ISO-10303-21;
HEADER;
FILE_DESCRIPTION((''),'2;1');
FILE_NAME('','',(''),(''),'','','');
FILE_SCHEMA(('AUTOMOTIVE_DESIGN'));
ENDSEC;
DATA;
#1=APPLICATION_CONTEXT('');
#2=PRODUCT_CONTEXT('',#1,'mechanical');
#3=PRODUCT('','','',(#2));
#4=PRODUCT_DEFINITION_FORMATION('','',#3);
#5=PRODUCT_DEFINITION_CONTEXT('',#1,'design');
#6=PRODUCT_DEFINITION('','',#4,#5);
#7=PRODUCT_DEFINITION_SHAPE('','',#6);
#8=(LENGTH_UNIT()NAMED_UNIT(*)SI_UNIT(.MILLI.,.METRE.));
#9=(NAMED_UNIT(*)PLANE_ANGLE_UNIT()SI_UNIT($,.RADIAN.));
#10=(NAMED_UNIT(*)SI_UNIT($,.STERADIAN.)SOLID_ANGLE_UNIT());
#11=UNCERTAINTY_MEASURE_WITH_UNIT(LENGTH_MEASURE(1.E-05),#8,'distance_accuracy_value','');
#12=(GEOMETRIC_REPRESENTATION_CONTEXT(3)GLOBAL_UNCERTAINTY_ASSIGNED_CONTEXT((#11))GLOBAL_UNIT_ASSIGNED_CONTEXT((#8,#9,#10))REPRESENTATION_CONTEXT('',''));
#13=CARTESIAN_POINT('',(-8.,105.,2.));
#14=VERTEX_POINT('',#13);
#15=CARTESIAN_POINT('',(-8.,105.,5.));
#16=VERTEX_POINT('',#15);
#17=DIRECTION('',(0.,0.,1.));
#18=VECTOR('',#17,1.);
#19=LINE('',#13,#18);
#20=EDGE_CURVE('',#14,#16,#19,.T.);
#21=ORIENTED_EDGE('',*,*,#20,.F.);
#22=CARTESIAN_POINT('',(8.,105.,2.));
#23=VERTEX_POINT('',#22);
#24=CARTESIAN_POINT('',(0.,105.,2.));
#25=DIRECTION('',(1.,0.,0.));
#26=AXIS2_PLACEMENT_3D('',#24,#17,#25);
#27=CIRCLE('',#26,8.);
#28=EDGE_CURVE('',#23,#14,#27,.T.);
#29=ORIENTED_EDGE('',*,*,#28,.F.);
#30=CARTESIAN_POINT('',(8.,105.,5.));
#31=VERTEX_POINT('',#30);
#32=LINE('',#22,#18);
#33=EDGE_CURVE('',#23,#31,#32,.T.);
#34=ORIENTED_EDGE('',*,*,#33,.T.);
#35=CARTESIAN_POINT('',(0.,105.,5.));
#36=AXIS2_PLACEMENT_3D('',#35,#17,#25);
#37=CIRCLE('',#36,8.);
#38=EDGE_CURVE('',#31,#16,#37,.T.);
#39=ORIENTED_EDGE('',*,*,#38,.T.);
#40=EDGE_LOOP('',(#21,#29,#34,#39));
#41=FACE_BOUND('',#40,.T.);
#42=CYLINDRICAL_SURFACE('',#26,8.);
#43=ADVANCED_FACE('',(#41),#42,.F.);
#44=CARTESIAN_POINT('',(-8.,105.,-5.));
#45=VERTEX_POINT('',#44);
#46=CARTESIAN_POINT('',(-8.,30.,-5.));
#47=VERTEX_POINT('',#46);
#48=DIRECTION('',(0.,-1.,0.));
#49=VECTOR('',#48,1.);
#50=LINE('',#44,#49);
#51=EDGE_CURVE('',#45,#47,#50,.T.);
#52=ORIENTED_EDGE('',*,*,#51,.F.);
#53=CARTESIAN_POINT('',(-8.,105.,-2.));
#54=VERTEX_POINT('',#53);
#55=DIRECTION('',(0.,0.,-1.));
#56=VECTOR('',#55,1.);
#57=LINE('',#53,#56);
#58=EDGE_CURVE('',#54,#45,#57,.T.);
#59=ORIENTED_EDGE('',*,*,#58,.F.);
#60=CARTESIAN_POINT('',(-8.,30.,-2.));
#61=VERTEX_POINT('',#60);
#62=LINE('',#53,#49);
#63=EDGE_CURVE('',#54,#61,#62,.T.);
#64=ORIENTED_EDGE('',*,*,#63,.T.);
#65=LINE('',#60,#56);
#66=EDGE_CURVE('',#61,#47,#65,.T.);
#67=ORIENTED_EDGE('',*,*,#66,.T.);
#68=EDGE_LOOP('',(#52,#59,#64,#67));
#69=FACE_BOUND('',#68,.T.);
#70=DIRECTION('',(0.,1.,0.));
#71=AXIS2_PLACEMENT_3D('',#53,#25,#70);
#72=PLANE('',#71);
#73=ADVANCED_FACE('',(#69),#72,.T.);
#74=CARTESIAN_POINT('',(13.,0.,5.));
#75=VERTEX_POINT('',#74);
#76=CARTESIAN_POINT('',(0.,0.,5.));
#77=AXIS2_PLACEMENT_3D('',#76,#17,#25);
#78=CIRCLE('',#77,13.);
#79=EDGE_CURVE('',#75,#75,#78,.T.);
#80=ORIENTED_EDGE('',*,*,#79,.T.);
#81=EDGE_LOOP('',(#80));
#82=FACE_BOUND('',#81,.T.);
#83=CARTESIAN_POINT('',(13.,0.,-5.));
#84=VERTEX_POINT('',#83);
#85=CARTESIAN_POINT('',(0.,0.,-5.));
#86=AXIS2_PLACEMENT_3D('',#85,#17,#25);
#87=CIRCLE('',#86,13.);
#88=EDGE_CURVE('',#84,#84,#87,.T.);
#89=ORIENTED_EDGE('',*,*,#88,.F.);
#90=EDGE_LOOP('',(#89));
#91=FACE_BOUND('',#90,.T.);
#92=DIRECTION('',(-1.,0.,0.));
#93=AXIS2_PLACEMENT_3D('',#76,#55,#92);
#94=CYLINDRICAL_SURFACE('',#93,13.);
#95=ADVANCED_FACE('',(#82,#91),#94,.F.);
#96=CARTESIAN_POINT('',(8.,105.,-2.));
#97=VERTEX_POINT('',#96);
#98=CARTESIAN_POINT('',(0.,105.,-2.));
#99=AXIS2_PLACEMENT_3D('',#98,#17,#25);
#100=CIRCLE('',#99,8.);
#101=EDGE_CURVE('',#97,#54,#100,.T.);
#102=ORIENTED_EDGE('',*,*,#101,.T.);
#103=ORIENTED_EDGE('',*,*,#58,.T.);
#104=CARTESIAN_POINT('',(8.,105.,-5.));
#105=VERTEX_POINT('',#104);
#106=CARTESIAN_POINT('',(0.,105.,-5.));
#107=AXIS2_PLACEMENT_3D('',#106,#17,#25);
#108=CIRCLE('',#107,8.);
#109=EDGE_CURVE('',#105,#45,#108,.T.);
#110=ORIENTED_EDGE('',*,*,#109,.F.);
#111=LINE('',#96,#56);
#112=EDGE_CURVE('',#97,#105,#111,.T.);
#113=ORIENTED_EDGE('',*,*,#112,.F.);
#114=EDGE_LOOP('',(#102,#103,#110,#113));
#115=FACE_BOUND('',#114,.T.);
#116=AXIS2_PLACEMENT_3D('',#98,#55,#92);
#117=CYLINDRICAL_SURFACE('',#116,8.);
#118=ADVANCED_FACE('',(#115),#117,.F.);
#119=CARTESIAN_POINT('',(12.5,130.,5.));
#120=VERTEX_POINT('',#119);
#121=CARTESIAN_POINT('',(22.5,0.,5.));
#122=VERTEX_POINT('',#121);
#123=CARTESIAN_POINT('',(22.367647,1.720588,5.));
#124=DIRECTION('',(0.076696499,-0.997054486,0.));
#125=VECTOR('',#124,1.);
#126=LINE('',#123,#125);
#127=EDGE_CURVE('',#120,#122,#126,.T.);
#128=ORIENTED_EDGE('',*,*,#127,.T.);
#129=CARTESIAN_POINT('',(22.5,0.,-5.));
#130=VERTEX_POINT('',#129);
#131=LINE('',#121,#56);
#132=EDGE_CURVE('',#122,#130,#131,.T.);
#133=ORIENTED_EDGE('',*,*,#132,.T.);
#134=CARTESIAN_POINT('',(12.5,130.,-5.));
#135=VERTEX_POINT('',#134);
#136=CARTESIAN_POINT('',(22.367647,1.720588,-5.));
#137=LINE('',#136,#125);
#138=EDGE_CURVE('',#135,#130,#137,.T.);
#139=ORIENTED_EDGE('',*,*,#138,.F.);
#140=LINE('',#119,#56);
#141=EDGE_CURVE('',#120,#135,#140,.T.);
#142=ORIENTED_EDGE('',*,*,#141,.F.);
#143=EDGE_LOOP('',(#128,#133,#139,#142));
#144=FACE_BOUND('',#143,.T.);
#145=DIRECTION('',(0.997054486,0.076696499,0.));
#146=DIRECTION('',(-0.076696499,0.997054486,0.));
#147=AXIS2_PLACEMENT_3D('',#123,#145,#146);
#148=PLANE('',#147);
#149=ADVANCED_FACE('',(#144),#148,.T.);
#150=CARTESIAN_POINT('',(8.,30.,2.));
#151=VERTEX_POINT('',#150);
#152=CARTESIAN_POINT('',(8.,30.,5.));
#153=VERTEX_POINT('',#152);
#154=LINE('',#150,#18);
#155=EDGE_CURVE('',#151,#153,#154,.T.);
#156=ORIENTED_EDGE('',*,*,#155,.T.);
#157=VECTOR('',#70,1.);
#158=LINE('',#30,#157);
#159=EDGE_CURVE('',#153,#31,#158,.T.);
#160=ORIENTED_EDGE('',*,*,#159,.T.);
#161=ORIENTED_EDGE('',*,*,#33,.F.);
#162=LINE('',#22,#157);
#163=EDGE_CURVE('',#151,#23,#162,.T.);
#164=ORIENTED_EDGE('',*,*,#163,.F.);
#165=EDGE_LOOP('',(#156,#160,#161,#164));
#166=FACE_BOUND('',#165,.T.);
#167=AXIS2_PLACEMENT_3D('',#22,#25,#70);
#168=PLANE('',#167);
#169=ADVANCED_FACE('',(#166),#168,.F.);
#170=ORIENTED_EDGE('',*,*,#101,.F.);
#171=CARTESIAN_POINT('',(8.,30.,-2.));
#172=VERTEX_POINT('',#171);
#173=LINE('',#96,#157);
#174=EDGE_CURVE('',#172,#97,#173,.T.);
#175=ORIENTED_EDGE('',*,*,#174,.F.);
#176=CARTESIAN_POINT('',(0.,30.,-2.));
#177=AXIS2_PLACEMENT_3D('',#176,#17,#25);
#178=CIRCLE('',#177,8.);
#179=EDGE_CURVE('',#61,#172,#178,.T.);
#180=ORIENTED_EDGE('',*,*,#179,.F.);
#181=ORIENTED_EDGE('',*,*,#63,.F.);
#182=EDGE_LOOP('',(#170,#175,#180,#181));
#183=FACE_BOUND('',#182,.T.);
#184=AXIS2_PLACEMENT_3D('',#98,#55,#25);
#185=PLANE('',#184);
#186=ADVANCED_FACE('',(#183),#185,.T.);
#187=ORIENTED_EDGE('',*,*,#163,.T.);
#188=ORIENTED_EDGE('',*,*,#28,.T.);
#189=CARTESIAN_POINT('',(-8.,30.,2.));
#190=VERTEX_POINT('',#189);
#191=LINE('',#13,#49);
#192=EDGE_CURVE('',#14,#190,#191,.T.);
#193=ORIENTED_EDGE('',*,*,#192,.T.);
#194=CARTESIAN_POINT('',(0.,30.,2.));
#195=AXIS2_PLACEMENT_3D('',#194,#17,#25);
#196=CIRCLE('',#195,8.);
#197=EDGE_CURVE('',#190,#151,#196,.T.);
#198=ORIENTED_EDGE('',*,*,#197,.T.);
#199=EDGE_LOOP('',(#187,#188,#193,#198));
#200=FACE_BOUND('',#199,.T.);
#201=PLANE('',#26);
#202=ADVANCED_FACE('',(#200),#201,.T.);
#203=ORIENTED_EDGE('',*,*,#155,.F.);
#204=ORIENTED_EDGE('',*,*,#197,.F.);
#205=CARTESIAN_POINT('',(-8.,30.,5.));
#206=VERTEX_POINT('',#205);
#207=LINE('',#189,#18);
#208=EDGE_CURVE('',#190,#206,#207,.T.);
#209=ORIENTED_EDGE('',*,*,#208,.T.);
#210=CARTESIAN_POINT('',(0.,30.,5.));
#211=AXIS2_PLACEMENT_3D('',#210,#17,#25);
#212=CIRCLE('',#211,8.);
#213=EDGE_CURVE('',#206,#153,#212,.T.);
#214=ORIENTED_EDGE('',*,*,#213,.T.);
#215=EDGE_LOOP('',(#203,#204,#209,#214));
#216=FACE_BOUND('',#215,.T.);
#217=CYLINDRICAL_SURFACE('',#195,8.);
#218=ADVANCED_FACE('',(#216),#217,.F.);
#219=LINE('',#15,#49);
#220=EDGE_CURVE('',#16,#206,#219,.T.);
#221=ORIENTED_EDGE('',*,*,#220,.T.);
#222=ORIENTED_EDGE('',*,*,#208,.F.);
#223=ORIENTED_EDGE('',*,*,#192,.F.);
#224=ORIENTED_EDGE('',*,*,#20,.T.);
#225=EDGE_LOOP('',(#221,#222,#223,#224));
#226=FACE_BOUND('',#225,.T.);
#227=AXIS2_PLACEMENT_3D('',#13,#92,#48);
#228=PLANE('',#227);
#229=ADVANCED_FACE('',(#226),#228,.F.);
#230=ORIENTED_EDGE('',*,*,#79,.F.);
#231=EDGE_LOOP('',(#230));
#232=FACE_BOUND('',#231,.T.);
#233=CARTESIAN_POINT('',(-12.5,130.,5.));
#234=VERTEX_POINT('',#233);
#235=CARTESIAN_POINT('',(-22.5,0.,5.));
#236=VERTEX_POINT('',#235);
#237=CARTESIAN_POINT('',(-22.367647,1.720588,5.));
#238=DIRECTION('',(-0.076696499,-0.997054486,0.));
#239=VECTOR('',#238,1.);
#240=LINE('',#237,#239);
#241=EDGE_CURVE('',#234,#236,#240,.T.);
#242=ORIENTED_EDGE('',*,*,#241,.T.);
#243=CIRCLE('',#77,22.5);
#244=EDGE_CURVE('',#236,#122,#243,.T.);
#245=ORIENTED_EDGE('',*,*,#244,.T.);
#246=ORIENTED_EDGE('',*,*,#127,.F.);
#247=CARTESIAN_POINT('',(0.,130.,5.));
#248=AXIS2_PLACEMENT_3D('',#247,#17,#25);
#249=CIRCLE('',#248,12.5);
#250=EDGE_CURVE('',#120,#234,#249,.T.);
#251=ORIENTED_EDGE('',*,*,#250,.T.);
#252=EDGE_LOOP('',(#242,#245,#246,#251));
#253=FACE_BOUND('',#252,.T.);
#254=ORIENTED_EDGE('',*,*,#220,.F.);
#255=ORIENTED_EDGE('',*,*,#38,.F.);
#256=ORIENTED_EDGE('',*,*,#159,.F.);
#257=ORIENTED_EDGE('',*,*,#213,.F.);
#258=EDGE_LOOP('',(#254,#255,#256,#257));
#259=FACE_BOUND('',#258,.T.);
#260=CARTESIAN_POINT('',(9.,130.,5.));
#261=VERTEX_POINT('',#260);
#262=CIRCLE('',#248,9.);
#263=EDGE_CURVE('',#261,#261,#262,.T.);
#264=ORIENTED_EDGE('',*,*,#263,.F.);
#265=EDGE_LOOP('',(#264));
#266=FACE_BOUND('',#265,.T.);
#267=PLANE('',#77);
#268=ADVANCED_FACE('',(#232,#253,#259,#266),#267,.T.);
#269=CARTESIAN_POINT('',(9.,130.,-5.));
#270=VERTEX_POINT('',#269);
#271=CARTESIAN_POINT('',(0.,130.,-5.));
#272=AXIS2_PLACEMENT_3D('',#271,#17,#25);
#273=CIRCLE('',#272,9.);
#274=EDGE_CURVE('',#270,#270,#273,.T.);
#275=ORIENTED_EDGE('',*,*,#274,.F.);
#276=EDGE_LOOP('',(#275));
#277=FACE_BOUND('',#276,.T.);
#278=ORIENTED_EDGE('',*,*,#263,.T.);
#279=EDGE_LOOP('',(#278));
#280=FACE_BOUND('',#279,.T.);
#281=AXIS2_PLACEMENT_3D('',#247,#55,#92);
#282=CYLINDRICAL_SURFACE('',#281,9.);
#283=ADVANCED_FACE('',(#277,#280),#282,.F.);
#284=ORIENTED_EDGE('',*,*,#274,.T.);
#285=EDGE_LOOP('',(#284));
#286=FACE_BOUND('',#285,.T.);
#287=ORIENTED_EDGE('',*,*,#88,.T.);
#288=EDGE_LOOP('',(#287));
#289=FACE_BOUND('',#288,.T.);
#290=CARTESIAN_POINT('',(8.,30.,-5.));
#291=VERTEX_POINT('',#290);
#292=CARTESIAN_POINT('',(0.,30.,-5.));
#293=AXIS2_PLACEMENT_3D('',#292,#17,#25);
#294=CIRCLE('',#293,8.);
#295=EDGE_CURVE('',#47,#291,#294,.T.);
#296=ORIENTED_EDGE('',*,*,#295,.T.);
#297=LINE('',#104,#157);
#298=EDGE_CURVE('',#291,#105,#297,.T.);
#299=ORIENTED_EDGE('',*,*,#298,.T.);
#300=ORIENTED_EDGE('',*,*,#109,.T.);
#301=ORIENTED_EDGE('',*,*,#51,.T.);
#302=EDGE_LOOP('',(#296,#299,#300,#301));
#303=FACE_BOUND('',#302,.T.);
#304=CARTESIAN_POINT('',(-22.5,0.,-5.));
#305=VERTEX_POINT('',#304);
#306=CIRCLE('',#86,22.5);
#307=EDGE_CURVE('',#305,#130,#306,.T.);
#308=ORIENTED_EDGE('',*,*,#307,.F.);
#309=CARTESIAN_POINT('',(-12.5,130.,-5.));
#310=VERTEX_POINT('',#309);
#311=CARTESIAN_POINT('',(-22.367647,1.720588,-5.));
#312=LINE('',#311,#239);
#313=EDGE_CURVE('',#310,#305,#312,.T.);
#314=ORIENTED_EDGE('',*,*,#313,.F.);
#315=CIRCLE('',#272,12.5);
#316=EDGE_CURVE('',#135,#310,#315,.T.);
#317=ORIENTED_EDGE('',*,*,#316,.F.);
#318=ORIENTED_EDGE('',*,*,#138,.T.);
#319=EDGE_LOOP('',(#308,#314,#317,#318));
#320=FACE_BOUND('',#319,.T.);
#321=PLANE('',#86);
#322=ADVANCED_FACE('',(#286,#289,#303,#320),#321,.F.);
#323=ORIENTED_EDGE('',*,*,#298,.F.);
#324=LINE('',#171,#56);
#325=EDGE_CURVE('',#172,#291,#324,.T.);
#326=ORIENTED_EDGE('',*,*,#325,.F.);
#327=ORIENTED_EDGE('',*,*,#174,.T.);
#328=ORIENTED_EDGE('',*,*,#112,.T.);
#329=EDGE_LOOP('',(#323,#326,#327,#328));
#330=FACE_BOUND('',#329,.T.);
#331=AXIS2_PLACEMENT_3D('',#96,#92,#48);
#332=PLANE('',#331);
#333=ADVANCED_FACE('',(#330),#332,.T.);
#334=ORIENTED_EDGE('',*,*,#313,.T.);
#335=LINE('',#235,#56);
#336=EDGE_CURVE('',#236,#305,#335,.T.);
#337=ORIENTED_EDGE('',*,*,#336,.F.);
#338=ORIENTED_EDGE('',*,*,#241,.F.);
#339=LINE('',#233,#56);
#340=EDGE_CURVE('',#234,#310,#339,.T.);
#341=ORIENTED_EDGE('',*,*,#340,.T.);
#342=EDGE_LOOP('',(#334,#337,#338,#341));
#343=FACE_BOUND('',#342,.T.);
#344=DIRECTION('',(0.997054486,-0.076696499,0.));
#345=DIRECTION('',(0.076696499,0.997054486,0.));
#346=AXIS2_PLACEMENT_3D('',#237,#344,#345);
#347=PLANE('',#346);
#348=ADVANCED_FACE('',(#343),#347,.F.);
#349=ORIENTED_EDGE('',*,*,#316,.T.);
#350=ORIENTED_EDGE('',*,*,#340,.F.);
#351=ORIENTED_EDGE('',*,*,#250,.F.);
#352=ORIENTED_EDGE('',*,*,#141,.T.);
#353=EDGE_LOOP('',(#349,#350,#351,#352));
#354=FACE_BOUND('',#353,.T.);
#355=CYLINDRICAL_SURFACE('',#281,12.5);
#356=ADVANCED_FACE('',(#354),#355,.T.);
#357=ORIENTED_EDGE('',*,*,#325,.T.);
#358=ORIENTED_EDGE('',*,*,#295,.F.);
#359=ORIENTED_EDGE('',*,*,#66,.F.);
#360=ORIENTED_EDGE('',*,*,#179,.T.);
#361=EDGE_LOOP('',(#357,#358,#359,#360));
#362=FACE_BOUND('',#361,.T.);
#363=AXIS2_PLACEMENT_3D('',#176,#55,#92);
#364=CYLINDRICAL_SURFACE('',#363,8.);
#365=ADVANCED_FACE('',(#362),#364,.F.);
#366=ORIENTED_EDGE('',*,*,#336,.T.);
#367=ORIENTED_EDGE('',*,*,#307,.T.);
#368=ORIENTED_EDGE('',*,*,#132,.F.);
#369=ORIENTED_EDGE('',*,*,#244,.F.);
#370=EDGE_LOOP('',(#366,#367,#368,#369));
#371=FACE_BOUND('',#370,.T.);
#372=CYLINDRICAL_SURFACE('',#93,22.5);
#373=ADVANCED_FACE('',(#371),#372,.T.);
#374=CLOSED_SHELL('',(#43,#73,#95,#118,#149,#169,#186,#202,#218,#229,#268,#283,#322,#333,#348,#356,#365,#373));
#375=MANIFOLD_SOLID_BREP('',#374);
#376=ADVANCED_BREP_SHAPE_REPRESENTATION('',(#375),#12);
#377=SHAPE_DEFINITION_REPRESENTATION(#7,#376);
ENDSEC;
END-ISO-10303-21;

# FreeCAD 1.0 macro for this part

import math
import FreeCAD as App
import Part
import Sketcher

doc = App.newDocument("Part")
params = doc.addObject("Spreadsheet::Sheet", "Params")
for row, (alias, value) in enumerate([
    ("sketch1_diameter", "26 mm"),
    ("sketch1_diameter2", "18 mm"),
    ("sketch1_radius", "12.5 mm"),
    ("sketch1_radius2", "22.5 mm"),
    ("pad1_length", "10 mm"),
    ("sketch2_radius", "8 mm"),
    ("sketch2_height", "75 mm"),
    ("pocket1_length", "3 mm"),
], start=1):
    params.set(f"A{row}", alias)
    params.set(f"B{row}", "=" + value)
    params.setAlias(f"B{row}", alias)

body = doc.addObject("PartDesign::Body", "Body")

sketch1 = body.newObject("Sketcher::SketchObject", "Sketch")
sketch1.AttachmentSupport = (doc.getObject("XY_Plane"), [""])
sketch1.MapMode = "FlatFace"
sketch1.addGeometry([
    Part.ArcOfCircle(Part.Circle(App.Vector(0, 130, 0), App.Vector(0, 0, 1), 12.5), math.radians(0), math.radians(180)),
    Part.LineSegment(App.Vector(-12.5, 130, 0), App.Vector(-22.2, 3.4, 0)),
    Part.LineSegment(App.Vector(-22.2, 3.4, 0), App.Vector(-22.5, 0, 0)),
    Part.ArcOfCircle(Part.Circle(App.Vector(0, 0, 0), App.Vector(0, 0, 1), 22.5), math.radians(180), math.radians(360)),
    Part.LineSegment(App.Vector(22.5, 0, 0), App.Vector(22.2, 3.4, 0)),
    Part.LineSegment(App.Vector(22.2, 3.4, 0), App.Vector(12.5, 130, 0)),
    Part.Circle(App.Vector(0, 0, 0), App.Vector(0, 0, 1), 13),
    Part.Circle(App.Vector(0, 130, 0), App.Vector(0, 0, 1), 9),
], False)
sketch1.addConstraint([
    Sketcher.Constraint("Coincident", 0, 2, 1, 1),
    Sketcher.Constraint("Coincident", 1, 2, 2, 1),
    Sketcher.Constraint("Coincident", 2, 2, 3, 1),
    Sketcher.Constraint("Coincident", 3, 2, 4, 1),
    Sketcher.Constraint("Coincident", 4, 2, 5, 1),
    Sketcher.Constraint("Coincident", 5, 2, 0, 1),
    Sketcher.Constraint("Coincident", 3, 3, -1, 1),
    Sketcher.Constraint("Coincident", 6, 3, -1, 1),
    Sketcher.Constraint("Coincident", 7, 3, 0, 3),
    Sketcher.Constraint("Symmetric", 1, 2, 4, 2, -2),
    Sketcher.Constraint("Symmetric", 0, 2, 5, 2, -2),
    Sketcher.Constraint("PointOnObject", 2, 2, -1),
    Sketcher.Constraint("PointOnObject", 3, 2, -1),
    Sketcher.Constraint("Parallel", 1, 2),
    Sketcher.Constraint("Horizontal", 7, 3, 0, 2),
    Sketcher.Constraint("Diameter", 6, 26.0),
    Sketcher.Constraint("Diameter", 7, 18.0),
    Sketcher.Constraint("Radius", 0, 12.5),
    Sketcher.Constraint("Radius", 3, 22.5),
    Sketcher.Constraint("DistanceY", -1, 1, 0, 3, 130.0),
    Sketcher.Constraint("DistanceX", 1, 2, 4, 2, 44.470588),
])
sketch1.setExpression("Constraints[15]", "Params.sketch1_diameter")
sketch1.setExpression("Constraints[16]", "Params.sketch1_diameter2")
sketch1.setExpression("Constraints[17]", "Params.sketch1_radius")
sketch1.setExpression("Constraints[18]", "Params.sketch1_radius2")
pad1 = body.newObject("PartDesign::Pad", "Pad")
pad1.Profile = sketch1
pad1.setExpression("Length", "Params.pad1_length")
pad1.Midplane = True

sketch2 = body.newObject("Sketcher::SketchObject", "Sketch001")
sketch2.AttachmentSupport = (doc.getObject("XY_Plane"), [""])
sketch2.MapMode = "FlatFace"
sketch2.AttachmentOffset = App.Placement(App.Vector(0, 0, 5), App.Rotation())
sketch2.addGeometry([
    Part.LineSegment(App.Vector(8, 30, 0), App.Vector(8, 105, 0)),
    Part.ArcOfCircle(Part.Circle(App.Vector(0, 105, 0), App.Vector(0, 0, 1), 8), math.radians(0), math.radians(180)),
    Part.LineSegment(App.Vector(-8, 105, 0), App.Vector(-8, 30, 0)),
    Part.ArcOfCircle(Part.Circle(App.Vector(0, 30, 0), App.Vector(0, 0, 1), 8), math.radians(180), math.radians(360)),
], False)
sketch2.addConstraint([
    Sketcher.Constraint("Tangent", 0, 2, 1, 1),
    Sketcher.Constraint("Tangent", 1, 2, 2, 1),
    Sketcher.Constraint("Tangent", 2, 2, 3, 1),
    Sketcher.Constraint("Tangent", 3, 2, 0, 1),
    Sketcher.Constraint("Vertical", 0),
    Sketcher.Constraint("Vertical", 2),
    Sketcher.Constraint("PointOnObject", 1, 3, -2),
    Sketcher.Constraint("Radius", 1, 8.0),
    Sketcher.Constraint("DistanceY", 0, 1, 0, 2, 75.0),
    Sketcher.Constraint("DistanceY", -1, 1, 1, 3, 105.0),
])
sketch2.setExpression("Constraints[7]", "Params.sketch2_radius")
sketch2.setExpression("Constraints[8]", "Params.sketch2_height")
pocket1 = body.newObject("PartDesign::Pocket", "Pocket")
pocket1.Profile = sketch2
pocket1.setExpression("Length", "Params.pocket1_length")
doc.recompute()

mirrored = body.newObject("PartDesign::Mirrored", "Mirrored")
mirrored.Originals = [pocket1]
mirrored.MirrorPlane = (doc.getObject("XY_Plane"), [""])
body.Tip = mirrored

doc.recompute()
